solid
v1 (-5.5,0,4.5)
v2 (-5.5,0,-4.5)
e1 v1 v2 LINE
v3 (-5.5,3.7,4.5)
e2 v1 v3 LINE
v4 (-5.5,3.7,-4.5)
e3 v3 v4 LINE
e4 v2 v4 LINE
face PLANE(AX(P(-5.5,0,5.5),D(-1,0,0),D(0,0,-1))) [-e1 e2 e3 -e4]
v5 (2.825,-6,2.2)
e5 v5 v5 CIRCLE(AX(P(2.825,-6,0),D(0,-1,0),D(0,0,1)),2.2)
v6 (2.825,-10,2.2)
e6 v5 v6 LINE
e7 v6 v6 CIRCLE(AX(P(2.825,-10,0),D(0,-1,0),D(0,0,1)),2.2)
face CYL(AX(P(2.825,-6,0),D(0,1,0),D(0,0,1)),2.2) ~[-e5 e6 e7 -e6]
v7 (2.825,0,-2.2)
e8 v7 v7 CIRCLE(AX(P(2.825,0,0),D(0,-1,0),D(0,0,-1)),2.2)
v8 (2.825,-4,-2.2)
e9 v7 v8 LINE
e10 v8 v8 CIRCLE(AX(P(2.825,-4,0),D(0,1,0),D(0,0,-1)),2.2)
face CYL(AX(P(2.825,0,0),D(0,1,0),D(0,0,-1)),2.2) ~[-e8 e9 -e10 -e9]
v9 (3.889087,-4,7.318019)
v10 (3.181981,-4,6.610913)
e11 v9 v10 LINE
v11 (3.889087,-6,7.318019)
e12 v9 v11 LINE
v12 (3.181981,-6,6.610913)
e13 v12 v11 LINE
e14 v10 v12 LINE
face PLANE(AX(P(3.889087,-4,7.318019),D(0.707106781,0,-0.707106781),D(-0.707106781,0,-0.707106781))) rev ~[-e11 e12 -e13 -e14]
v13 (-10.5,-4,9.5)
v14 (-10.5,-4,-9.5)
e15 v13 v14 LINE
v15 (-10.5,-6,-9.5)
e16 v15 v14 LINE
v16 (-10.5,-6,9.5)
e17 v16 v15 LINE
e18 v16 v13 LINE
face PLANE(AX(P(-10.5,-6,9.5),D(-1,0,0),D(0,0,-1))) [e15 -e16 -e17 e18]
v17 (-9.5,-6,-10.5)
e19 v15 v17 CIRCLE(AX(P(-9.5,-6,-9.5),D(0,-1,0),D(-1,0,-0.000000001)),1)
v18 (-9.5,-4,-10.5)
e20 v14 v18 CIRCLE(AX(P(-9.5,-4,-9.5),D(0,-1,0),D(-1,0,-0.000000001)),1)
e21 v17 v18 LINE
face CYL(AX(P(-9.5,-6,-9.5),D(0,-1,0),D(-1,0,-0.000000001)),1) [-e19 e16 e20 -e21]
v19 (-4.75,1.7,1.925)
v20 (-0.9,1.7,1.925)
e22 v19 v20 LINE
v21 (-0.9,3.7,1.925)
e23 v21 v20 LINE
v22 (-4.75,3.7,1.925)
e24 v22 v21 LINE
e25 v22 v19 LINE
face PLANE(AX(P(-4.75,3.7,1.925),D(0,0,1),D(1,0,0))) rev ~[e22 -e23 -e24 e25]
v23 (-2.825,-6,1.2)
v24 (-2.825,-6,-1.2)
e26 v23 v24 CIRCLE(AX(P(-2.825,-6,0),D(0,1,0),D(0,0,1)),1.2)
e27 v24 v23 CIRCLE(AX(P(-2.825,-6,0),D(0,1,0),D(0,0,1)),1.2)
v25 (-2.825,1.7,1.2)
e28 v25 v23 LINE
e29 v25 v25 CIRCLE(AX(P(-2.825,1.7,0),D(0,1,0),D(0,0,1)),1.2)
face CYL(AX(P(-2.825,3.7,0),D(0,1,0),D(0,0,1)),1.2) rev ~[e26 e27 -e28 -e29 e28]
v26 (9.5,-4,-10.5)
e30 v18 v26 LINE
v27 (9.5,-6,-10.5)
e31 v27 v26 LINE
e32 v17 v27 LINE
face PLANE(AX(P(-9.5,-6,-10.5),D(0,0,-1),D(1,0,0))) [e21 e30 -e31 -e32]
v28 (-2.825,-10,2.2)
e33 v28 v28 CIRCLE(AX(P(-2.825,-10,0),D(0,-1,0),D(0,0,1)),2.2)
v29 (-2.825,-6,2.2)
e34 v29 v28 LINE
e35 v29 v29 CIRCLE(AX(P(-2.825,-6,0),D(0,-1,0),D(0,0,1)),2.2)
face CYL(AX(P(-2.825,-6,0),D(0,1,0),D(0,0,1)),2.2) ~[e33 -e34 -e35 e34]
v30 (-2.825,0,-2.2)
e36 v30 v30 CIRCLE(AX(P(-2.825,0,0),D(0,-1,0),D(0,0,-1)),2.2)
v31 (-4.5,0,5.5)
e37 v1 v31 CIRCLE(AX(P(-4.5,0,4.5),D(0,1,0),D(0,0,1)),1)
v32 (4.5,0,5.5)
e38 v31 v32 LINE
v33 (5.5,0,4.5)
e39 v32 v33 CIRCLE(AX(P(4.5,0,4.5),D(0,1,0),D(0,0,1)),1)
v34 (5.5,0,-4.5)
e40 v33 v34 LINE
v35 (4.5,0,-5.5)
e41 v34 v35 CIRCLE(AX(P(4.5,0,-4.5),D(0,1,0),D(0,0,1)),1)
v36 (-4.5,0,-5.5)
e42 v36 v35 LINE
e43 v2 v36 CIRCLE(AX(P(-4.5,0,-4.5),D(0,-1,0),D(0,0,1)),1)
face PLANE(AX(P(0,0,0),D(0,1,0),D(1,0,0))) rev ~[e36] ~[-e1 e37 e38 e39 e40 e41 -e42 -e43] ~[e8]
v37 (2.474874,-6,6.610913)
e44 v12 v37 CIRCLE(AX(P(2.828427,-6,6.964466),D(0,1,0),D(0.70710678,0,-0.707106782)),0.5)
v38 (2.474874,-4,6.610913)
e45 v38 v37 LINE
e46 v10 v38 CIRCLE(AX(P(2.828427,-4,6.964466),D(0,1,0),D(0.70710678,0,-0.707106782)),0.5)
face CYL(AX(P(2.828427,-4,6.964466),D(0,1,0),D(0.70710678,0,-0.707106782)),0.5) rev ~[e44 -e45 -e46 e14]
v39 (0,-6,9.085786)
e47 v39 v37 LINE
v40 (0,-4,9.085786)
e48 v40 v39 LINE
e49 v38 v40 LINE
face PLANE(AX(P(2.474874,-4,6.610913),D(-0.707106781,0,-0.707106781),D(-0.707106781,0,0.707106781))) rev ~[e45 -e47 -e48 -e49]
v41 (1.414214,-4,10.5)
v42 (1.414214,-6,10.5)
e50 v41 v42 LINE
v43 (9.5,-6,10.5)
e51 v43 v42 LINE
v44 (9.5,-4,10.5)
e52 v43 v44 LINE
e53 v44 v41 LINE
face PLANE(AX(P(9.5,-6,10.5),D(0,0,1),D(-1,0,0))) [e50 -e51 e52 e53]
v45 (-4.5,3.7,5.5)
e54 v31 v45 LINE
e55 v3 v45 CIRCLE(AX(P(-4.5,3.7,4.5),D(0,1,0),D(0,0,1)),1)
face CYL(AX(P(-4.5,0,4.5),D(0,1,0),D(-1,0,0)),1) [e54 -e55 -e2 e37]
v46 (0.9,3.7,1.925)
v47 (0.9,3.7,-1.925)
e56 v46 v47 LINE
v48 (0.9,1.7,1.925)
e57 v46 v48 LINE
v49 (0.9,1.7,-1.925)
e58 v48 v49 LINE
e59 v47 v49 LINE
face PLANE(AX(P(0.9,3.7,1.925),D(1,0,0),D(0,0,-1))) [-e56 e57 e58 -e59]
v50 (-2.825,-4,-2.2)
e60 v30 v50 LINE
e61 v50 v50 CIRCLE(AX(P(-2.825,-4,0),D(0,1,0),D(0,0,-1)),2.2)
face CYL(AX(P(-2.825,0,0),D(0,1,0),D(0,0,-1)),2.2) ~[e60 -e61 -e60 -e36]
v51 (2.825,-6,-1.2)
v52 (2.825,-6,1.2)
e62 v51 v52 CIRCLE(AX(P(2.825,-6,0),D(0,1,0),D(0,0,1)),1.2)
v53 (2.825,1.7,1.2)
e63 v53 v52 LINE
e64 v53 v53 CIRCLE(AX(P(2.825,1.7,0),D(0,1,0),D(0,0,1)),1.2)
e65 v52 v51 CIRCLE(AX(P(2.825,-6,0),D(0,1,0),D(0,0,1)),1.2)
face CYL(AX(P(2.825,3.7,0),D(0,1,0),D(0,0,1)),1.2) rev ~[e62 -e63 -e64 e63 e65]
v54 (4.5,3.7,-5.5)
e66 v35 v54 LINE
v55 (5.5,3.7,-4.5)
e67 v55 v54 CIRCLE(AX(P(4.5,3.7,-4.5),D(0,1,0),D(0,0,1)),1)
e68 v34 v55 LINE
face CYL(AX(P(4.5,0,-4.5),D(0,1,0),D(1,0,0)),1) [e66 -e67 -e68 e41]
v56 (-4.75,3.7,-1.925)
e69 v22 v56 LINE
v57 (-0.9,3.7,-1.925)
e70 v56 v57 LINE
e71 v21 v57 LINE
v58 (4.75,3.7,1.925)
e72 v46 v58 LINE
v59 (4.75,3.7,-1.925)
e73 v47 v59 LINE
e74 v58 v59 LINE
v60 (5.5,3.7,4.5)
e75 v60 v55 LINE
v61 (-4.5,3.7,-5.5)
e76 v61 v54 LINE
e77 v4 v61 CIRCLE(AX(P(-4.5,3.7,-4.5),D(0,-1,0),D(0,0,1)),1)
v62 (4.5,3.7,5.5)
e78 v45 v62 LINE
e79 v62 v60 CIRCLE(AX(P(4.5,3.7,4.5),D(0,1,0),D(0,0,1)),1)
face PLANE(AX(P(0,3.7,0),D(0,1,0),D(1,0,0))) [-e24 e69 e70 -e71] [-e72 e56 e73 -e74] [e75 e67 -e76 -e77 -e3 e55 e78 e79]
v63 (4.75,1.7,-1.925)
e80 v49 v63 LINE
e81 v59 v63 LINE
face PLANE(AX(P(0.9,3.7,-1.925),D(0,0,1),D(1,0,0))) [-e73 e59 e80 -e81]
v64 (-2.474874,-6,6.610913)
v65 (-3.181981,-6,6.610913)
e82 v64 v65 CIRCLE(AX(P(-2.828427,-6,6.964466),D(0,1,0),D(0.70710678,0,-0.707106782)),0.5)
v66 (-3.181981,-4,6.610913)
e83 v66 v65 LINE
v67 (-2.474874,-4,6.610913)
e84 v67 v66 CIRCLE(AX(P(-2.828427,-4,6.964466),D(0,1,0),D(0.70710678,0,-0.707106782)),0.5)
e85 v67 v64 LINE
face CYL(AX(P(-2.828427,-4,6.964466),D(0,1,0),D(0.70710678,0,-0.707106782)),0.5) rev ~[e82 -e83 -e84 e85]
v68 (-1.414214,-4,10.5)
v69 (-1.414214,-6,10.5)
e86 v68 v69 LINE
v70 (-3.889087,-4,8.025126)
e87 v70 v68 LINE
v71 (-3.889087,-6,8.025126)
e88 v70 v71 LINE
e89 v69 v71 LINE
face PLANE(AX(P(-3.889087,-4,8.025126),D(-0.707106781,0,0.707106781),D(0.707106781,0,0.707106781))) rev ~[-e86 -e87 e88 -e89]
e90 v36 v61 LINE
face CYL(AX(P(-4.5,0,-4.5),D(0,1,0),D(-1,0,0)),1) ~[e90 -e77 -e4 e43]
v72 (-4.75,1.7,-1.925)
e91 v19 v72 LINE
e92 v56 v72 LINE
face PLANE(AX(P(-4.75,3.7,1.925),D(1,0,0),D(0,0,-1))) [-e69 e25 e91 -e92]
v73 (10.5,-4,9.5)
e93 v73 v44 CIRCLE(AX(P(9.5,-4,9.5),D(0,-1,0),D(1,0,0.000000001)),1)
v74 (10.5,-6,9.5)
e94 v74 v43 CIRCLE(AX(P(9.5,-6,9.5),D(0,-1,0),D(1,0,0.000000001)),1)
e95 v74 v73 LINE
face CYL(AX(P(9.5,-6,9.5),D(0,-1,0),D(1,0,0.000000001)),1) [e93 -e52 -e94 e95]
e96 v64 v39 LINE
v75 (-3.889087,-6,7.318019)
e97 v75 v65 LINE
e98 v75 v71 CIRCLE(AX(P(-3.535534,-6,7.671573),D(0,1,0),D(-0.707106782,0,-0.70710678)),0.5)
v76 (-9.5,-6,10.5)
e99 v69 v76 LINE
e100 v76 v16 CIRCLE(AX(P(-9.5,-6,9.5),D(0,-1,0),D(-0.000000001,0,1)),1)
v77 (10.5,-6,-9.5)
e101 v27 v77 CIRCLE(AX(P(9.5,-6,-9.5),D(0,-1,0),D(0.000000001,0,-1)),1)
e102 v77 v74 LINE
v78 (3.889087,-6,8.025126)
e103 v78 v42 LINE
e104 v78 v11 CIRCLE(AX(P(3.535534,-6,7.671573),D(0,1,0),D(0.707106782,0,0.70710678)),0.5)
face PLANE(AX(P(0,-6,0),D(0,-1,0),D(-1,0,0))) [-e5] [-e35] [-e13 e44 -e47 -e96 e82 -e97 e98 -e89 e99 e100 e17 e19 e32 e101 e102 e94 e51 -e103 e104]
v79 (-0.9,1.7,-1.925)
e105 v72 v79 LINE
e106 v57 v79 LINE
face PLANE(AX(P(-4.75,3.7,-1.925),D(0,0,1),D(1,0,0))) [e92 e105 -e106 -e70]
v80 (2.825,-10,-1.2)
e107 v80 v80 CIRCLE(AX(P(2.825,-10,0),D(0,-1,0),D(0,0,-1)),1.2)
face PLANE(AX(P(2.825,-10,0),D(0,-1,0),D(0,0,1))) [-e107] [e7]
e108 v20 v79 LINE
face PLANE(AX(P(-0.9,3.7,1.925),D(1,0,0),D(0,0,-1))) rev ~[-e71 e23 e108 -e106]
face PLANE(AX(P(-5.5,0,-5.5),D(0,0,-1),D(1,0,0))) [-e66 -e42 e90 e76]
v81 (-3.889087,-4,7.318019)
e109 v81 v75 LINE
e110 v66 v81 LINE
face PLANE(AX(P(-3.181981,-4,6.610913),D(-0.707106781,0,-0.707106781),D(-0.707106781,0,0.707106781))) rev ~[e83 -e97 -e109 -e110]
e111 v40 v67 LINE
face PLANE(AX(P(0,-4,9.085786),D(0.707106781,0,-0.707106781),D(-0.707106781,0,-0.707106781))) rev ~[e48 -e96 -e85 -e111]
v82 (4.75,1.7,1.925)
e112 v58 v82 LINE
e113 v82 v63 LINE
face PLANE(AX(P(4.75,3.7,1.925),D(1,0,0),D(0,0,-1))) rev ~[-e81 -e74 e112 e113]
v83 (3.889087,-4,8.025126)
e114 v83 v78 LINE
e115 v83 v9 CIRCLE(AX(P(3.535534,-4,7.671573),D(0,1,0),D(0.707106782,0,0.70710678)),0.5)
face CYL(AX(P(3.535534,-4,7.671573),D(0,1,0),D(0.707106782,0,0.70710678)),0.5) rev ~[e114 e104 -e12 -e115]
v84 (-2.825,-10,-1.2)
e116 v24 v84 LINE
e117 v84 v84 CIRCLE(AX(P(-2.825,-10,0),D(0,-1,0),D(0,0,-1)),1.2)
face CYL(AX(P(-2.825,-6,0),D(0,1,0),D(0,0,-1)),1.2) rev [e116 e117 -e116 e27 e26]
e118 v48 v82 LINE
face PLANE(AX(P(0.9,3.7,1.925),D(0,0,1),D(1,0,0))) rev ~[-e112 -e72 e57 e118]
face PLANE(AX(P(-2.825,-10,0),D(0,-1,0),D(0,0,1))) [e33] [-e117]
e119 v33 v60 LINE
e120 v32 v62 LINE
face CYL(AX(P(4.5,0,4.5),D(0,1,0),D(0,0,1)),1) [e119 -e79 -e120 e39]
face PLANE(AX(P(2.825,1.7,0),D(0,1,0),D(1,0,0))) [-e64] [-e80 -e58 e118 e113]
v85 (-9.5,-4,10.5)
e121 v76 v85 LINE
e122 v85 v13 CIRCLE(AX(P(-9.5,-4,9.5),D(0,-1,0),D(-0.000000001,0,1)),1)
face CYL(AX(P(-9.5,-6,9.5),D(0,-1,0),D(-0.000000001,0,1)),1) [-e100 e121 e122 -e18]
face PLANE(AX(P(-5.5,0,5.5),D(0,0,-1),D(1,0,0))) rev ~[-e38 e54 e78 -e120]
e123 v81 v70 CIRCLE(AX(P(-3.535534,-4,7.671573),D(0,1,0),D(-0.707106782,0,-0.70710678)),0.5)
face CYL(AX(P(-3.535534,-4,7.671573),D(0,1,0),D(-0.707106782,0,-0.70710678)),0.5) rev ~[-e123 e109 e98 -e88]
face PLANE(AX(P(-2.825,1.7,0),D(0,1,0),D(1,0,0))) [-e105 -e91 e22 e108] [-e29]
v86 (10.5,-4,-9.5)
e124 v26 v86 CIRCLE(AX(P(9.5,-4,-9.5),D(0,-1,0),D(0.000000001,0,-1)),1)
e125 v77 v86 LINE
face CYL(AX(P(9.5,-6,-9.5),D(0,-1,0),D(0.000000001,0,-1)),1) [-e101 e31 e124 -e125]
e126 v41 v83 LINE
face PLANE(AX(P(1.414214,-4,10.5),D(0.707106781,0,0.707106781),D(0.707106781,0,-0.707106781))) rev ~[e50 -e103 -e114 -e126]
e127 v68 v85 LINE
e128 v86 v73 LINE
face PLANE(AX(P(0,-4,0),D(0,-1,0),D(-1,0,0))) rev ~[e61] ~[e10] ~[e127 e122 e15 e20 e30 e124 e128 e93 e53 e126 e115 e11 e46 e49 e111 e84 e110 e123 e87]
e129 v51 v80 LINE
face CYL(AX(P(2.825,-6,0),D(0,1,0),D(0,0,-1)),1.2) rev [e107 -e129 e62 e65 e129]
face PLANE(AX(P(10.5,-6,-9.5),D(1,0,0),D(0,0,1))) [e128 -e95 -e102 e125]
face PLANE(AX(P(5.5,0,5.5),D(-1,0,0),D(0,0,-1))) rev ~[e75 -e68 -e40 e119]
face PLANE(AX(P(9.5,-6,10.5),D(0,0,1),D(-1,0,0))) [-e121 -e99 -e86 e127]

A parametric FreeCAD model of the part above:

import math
import FreeCAD as App
import Part
import Sketcher
Q = App.Units.Quantity


def edges_at(feature, points):
    """Names of the edges that pass closest to the given points."""
    edges = feature.Shape.Edges
    near = lambda p: min(range(len(edges)), key=lambda i: edges[i].distToShape(Part.Vertex(*p))[0])
    return sorted({f"Edge{near(p) + 1}" for p in points})

doc = App.newDocument("Part")
body = doc.addObject("PartDesign::Body", "Body")

# Sketch on XZ plane
sketch1 = body.newObject("Sketcher::SketchObject", "Sketch")
sketch1.AttachmentSupport = (doc.getObject("XZ_Plane"), [""])
sketch1.MapMode = "FlatFace"
sketch1.addGeometry([
    Part.LineSegment(App.Vector(-6, -6, 0), App.Vector(-6, 6, 0)),
    Part.LineSegment(App.Vector(-6, 6, 0), App.Vector(6, 6, 0)),
    Part.LineSegment(App.Vector(6, 6, 0), App.Vector(6, -6, 0)),
    Part.LineSegment(App.Vector(6, -6, 0), App.Vector(-6, -6, 0)),
], False)
sketch1.addConstraint([
    Sketcher.Constraint("Coincident", 0, 2, 1, 1),
    Sketcher.Constraint("Coincident", 1, 2, 2, 1),
    Sketcher.Constraint("Coincident", 2, 2, 3, 1),
    Sketcher.Constraint("Coincident", 3, 2, 0, 1),
    Sketcher.Constraint("Vertical", 0),
    Sketcher.Constraint("Horizontal", 1),
    Sketcher.Constraint("Vertical", 2),
    Sketcher.Constraint("Horizontal", 3),
    Sketcher.Constraint("Symmetric", 0, 2, 2, 2, -1, 1),
    Sketcher.Constraint("Equal", 3, 0),
    Sketcher.Constraint("DistanceX", 1, 1, 1, 2, Q("11 mm")),
])
pad1 = body.newObject("PartDesign::Pad", "Pad")
pad1.Profile = sketch1
pad1.Length = 3.7
pad1.Reversed = True
doc.recompute()

fillet = body.newObject("PartDesign::Fillet", "Fillet")
fillet.Base = (pad1, edges_at(pad1, [
    (5.5, 1.85, 5.5),
    (-5.5, 1.85, 5.5),
    (-5.5, 1.85, -5.5),
    (5.5, 1.85, -5.5),
]))
fillet.Radius = 1

# Sketch on XZ plane
sketch2 = body.newObject("Sketcher::SketchObject", "Sketch001")
sketch2.AttachmentSupport = (doc.getObject("XZ_Plane"), [""])
sketch2.MapMode = "FlatFace"
sketch2.AttachmentOffset = App.Placement(App.Vector(0, 0, -3.7), App.Rotation())
sketch2.addGeometry([
    Part.LineSegment(App.Vector(-4.8, -1.9, 0), App.Vector(-4.8, 1.9, 0)),  # 0
    Part.LineSegment(App.Vector(-4.8, 1.9, 0), App.Vector(-0.9, 1.9, 0)),  # 1
    Part.LineSegment(App.Vector(-0.9, 1.9, 0), App.Vector(-0.9, -1.9, 0)),  # 2
    Part.LineSegment(App.Vector(-0.9, -1.9, 0), App.Vector(-4.8, -1.9, 0)),  # 3
    Part.LineSegment(App.Vector(0.9, -1.9, 0), App.Vector(0.9, 1.9, 0)),  # 4
    Part.LineSegment(App.Vector(0.9, 1.9, 0), App.Vector(4.8, 1.9, 0)),  # 5
    Part.LineSegment(App.Vector(4.8, 1.9, 0), App.Vector(4.8, -1.9, 0)),  # 6
    Part.LineSegment(App.Vector(4.8, -1.9, 0), App.Vector(0.9, -1.9, 0)),  # 7
], False)
sketch2.addConstraint([
    Sketcher.Constraint("Coincident", 0, 2, 1, 1),
    Sketcher.Constraint("Coincident", 1, 2, 2, 1),
    Sketcher.Constraint("Coincident", 2, 2, 3, 1),
    Sketcher.Constraint("Coincident", 3, 2, 0, 1),
    Sketcher.Constraint("Coincident", 4, 2, 5, 1),
    Sketcher.Constraint("Coincident", 5, 2, 6, 1),
    Sketcher.Constraint("Coincident", 6, 2, 7, 1),
    Sketcher.Constraint("Coincident", 7, 2, 4, 1),
    Sketcher.Constraint("Vertical", 0),
    Sketcher.Constraint("Horizontal", 1),
    Sketcher.Constraint("Vertical", 2),
    Sketcher.Constraint("Horizontal", 3),
    Sketcher.Constraint("Vertical", 4),
    Sketcher.Constraint("Horizontal", 5),
    Sketcher.Constraint("Vertical", 6),
    Sketcher.Constraint("Horizontal", 7),
    Sketcher.Constraint("Symmetric", 2, 2, 4, 2, -1, 1),
    Sketcher.Constraint("Symmetric", 0, 2, 6, 2, -1, 1),
    Sketcher.Constraint("Horizontal", 1, 2, 4, 2),
    Sketcher.Constraint("Equal", 7, 0),
    Sketcher.Constraint("DistanceX", 1, 1, 1, 2, Q("3.85 mm")),
    Sketcher.Constraint("DistanceX", 1, 2, -1, 1, Q("0.9 mm")),
])
pocket1 = body.newObject("PartDesign::Pocket", "Pocket")
pocket1.Profile = sketch2
pocket1.Length = 2
pocket1.Reversed = True

# Sketch on XZ plane
sketch3 = body.newObject("Sketcher::SketchObject", "Sketch002")
sketch3.AttachmentSupport = (doc.getObject("XZ_Plane"), [""])
sketch3.MapMode = "FlatFace"
sketch3.addGeometry([
    Part.Circle(App.Vector(-2.8, 0, 0), App.Vector(0, 0, 1), 2.2),
    Part.Circle(App.Vector(2.8, 0, 0), App.Vector(0, 0, 1), 2.2),
], False)
sketch3.addConstraint([
    Sketcher.Constraint("Equal", 0, 1),
    Sketcher.Constraint("Symmetric", 0, 3, 1, 3, -1, 1),
    Sketcher.Constraint("PointOnObject", 0, 3, -1),
    Sketcher.Constraint("Diameter", 0, Q("4.4 mm")),
    Sketcher.Constraint("DistanceX", 0, 3, 1, 3, Q("5.65 mm")),
])
pad2 = body.newObject("PartDesign::Pad", "Pad001")
pad2.Profile = sketch3
pad2.Length = 6

# Sketch on XZ plane
sketch4 = body.newObject("Sketcher::SketchObject", "Sketch003")
sketch4.AttachmentSupport = (doc.getObject("XZ_Plane"), [""])
sketch4.MapMode = "FlatFace"
sketch4.AttachmentOffset = App.Placement(App.Vector(0, 0, 6), App.Rotation())
sketch4.addGeometry([
    Part.LineSegment(App.Vector(-9.5, -10.5, 0), App.Vector(9.5, -10.5, 0)),  # 0
    Part.ArcOfCircle(Part.Circle(App.Vector(9.5, -9.5, 0), App.Vector(0, 0, 1), 1), math.radians(-90), math.radians(0)),  # 1
    Part.LineSegment(App.Vector(10.5, -9.5, 0), App.Vector(10.5, 9.5, 0)),  # 2
    Part.ArcOfCircle(Part.Circle(App.Vector(9.5, 9.5, 0), App.Vector(0, 0, 1), 1), math.radians(0), math.radians(90)),  # 3
    Part.LineSegment(App.Vector(9.5, 10.5, 0), App.Vector(-9.5, 10.5, 0)),  # 4
    Part.ArcOfCircle(Part.Circle(App.Vector(-9.5, 9.5, 0), App.Vector(0, 0, 1), 1), math.radians(90), math.radians(180)),  # 5
    Part.LineSegment(App.Vector(-10.5, 9.5, 0), App.Vector(-10.5, -9.5, 0)),  # 6
    Part.ArcOfCircle(Part.Circle(App.Vector(-9.5, -9.5, 0), App.Vector(0, 0, 1), 1), math.radians(-180), math.radians(-90)),  # 7
], False)
sketch4.addConstraint([
    Sketcher.Constraint("Tangent", 0, 2, 1, 1),
    Sketcher.Constraint("Tangent", 1, 2, 2, 1),
    Sketcher.Constraint("Tangent", 2, 2, 3, 1),
    Sketcher.Constraint("Tangent", 3, 2, 4, 1),
    Sketcher.Constraint("Tangent", 4, 2, 5, 1),
    Sketcher.Constraint("Tangent", 5, 2, 6, 1),
    Sketcher.Constraint("Tangent", 6, 2, 7, 1),
    Sketcher.Constraint("Tangent", 7, 2, 0, 1),
    Sketcher.Constraint("Horizontal", 0),
    Sketcher.Constraint("Vertical", 2),
    Sketcher.Constraint("Horizontal", 4),
    Sketcher.Constraint("Vertical", 6),
    Sketcher.Constraint("Equal", 1, 3),
    Sketcher.Constraint("Equal", 3, 5),
    Sketcher.Constraint("Equal", 5, 7),
    Sketcher.Constraint("Symmetric", 1, 3, 5, 3, -1, 1),
    Sketcher.Constraint("Equal", 4, 2),
    Sketcher.Constraint("Radius", 1, Q("1 mm")),
    Sketcher.Constraint("DistanceX", 0, 1, 0, 2, Q("19 mm")),
])
pad3 = body.newObject("PartDesign::Pad", "Pad002")
pad3.Profile = sketch4
pad3.Length = 2
pad3.Reversed = True

# Sketch on XZ plane
sketch5 = body.newObject("Sketcher::SketchObject", "Sketch004")
sketch5.AttachmentSupport = (doc.getObject("XZ_Plane"), [""])
sketch5.MapMode = "FlatFace"
sketch5.AttachmentOffset = App.Placement(App.Vector(0, 0, -3.7), App.Rotation())
sketch5.addGeometry([
    Part.Circle(App.Vector(-2.8, 0, 0), App.Vector(0, 0, 1), 1.2),
    Part.Circle(App.Vector(2.8, 0, 0), App.Vector(0, 0, 1), 1.2),
], False)
sketch5.addConstraint([
    Sketcher.Constraint("Equal", 0, 1),
    Sketcher.Constraint("Symmetric", 0, 3, 1, 3, -1, 1),
    Sketcher.Constraint("PointOnObject", 0, 3, -1),
    Sketcher.Constraint("Diameter", 0, Q("2.4 mm")),
    Sketcher.Constraint("DistanceX", 0, 3, 1, 3, Q("5.65 mm")),
])
pocket2 = body.newObject("PartDesign::Pocket", "Pocket001")
pocket2.Profile = sketch5
pocket2.Type = "ThroughAll"
pocket2.Reversed = True

# Sketch on XZ plane
sketch6 = body.newObject("Sketcher::SketchObject", "Sketch005")
sketch6.AttachmentSupport = (doc.getObject("XZ_Plane"), [""])
sketch6.MapMode = "FlatFace"
sketch6.AttachmentOffset = App.Placement(App.Vector(0, 0, 4), App.Rotation())
sketch6.addGeometry([
    Part.LineSegment(App.Vector(1.4, 10.5, 0), App.Vector(3.9, 8, 0)),  # 0
    Part.ArcOfCircle(Part.Circle(App.Vector(3.5, 7.7, 0), App.Vector(0, 0, 1), 0.5), math.radians(-45), math.radians(45)),  # 1
    Part.LineSegment(App.Vector(3.9, 7.3, 0), App.Vector(3.2, 6.6, 0)),  # 2
    Part.ArcOfCircle(Part.Circle(App.Vector(2.8, 7, 0), App.Vector(0, 0, 1), 0.5), math.radians(-135), math.radians(-45)),  # 3
    Part.LineSegment(App.Vector(2.5, 6.6, 0), App.Vector(0, 9.1, 0)),  # 4
    Part.LineSegment(App.Vector(0, 9.1, 0), App.Vector(-2.5, 6.6, 0)),  # 5
    Part.ArcOfCircle(Part.Circle(App.Vector(-2.8, 7, 0), App.Vector(0, 0, 1), 0.5), math.radians(-135), math.radians(-45)),  # 6
    Part.LineSegment(App.Vector(-3.2, 6.6, 0), App.Vector(-3.9, 7.3, 0)),  # 7
    Part.ArcOfCircle(Part.Circle(App.Vector(-3.5, 7.7, 0), App.Vector(0, 0, 1), 0.5), math.radians(135), math.radians(225)),  # 8
    Part.LineSegment(App.Vector(-3.9, 8, 0), App.Vector(-1.4, 10.5, 0)),  # 9
    Part.LineSegment(App.Vector(-1.4, 10.5, 0), App.Vector(1.4, 10.5, 0)),  # 10
], False)
sketch6.addConstraint([
    Sketcher.Constraint("Tangent", 0, 2, 1, 2),
    Sketcher.Constraint("Tangent", 1, 1, 2, 1),
    Sketcher.Constraint("Tangent", 2, 2, 3, 2),
    Sketcher.Constraint("Tangent", 3, 1, 4, 1),
    Sketcher.Constraint("Coincident", 4, 2, 5, 1),
    Sketcher.Constraint("Tangent", 5, 2, 6, 2),
    Sketcher.Constraint("Tangent", 6, 1, 7, 1),
    Sketcher.Constraint("Tangent", 7, 2, 8, 2),
    Sketcher.Constraint("Tangent", 8, 1, 9, 1),
    Sketcher.Constraint("Coincident", 9, 2, 10, 1),
    Sketcher.Constraint("Coincident", 10, 2, 0, 1),
    Sketcher.Constraint("Horizontal", 10),
    Sketcher.Constraint("Equal", 1, 3),
    Sketcher.Constraint("Equal", 3, 6),
    Sketcher.Constraint("Equal", 6, 8),
    Sketcher.Constraint("Symmetric", 3, 3, 6, 3, -2),
    Sketcher.Constraint("Symmetric", 1, 3, 8, 3, -2),
    Sketcher.Constraint("PointOnObject", 4, 2, -2),
    Sketcher.Constraint("Perpendicular", 0, 2),
    Sketcher.Constraint("Perpendicular", 2, 4),
    Sketcher.Constraint("Perpendicular", 4, 5),
    Sketcher.Constraint("Perpendicular", 7, 9),
    Sketcher.Constraint("Equal", 0, 4),
    Sketcher.Constraint("Radius", 1, Q("0.5 mm")),
    Sketcher.Constraint("Distance", 2, Q("1 mm")),
    Sketcher.Constraint("Distance", 0, Q("3.5 mm")),
    Sketcher.Constraint("DistanceY", -1, 1, 9, 2, Q("10.5 mm")),
])
pocket3 = body.newObject("PartDesign::Pocket", "Pocket002")
pocket3.Profile = sketch6
pocket3.Type = "ThroughAll"
pocket3.Reversed = True

# Sketch on XZ plane
sketch7 = body.newObject("Sketcher::SketchObject", "Sketch006")
sketch7.AttachmentSupport = (doc.getObject("XZ_Plane"), [""])
sketch7.MapMode = "FlatFace"
sketch7.AttachmentOffset = App.Placement(App.Vector(0, 0, 6), App.Rotation())
sketch7.addGeometry([
    Part.Circle(App.Vector(-2.8, 0, 0), App.Vector(0, 0, 1), 2.2),
    Part.Circle(App.Vector(-2.8, 0, 0), App.Vector(0, 0, 1), 1.2),
    Part.Circle(App.Vector(2.8, 0, 0), App.Vector(0, 0, 1), 2.2),
    Part.Circle(App.Vector(2.8, 0, 0), App.Vector(0, 0, 1), 1.2),
], False)
sketch7.addConstraint([
    Sketcher.Constraint("Coincident", 1, 3, 0, 3),
    Sketcher.Constraint("Coincident", 3, 3, 2, 3),
    Sketcher.Constraint("Equal", 0, 2),
    Sketcher.Constraint("Equal", 1, 3),
    Sketcher.Constraint("Symmetric", 0, 3, 2, 3, -1, 1),
    Sketcher.Constraint("PointOnObject", 0, 3, -1),
    Sketcher.Constraint("Diameter", 0, Q("4.4 mm")),
    Sketcher.Constraint("Diameter", 1, Q("2.4 mm")),
    Sketcher.Constraint("DistanceX", 0, 3, 2, 3, Q("5.65 mm")),
])
pad4 = body.newObject("PartDesign::Pad", "Pad003")
pad4.Profile = sketch7
pad4.Length = 4

doc.recompute()
